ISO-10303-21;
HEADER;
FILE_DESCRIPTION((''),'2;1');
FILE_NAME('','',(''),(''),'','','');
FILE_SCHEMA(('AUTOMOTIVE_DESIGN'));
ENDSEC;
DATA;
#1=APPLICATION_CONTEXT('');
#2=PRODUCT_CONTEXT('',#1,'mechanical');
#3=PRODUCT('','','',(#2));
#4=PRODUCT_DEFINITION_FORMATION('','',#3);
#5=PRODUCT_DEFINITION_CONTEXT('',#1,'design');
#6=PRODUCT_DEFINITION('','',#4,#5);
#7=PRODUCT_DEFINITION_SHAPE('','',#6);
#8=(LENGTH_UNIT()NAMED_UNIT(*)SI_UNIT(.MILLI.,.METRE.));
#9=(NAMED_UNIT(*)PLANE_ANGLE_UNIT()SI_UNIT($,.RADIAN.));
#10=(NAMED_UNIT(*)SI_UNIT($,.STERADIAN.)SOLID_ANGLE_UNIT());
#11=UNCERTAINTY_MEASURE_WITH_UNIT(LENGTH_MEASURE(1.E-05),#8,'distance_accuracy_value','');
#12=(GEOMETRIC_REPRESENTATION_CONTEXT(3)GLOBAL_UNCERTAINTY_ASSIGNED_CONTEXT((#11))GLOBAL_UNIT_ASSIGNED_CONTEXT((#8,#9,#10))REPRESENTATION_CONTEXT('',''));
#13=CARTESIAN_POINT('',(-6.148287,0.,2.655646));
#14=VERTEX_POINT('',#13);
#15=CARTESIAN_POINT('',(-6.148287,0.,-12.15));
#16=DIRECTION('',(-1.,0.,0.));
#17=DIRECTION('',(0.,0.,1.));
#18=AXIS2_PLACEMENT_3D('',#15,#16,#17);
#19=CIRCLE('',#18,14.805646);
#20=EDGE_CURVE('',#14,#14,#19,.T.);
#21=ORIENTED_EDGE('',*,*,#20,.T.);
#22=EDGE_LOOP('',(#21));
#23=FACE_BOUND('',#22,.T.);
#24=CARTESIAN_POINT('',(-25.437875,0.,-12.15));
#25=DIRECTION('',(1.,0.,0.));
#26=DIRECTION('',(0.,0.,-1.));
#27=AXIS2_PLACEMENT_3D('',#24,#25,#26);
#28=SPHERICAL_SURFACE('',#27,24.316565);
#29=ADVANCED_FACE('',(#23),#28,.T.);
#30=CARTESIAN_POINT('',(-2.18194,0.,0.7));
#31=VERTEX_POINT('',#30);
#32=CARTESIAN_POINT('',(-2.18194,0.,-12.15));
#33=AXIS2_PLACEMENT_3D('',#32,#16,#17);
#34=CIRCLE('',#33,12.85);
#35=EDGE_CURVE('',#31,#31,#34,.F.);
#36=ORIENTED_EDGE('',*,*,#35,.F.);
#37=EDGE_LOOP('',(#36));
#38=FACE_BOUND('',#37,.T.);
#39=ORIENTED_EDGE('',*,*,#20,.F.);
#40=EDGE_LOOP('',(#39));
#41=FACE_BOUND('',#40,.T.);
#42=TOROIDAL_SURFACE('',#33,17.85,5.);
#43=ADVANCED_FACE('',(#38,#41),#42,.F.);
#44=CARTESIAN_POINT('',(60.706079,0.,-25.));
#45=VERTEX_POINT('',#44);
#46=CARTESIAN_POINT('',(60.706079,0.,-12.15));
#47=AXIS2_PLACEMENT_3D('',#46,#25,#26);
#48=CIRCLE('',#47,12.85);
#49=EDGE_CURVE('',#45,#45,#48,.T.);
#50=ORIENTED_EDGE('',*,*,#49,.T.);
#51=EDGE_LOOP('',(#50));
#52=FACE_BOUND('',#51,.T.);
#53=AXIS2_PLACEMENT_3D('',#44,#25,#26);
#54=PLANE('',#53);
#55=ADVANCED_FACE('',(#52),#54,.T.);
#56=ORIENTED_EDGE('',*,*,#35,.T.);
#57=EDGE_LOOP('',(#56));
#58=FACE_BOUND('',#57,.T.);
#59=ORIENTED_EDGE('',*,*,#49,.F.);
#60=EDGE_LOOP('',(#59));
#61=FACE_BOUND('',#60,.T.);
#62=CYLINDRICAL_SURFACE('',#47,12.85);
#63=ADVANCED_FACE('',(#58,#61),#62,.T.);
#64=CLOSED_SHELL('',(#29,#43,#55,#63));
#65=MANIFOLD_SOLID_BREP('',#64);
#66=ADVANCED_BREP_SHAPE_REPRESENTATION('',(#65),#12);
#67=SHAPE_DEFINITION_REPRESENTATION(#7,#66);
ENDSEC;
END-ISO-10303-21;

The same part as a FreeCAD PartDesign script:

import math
import FreeCAD as App
import Part
import Sketcher

V = App.Vector
Q = App.Units.Quantity


def edges_at(feature, points):
    """Names of the edges that pass closest to the given points."""
    edges = feature.Shape.Edges
    near = lambda p: min(range(len(edges)), key=lambda i: edges[i].distToShape(Part.Vertex(*p))[0])
    return sorted({f"Edge{near(p) + 1}" for p in points})

doc = App.newDocument("Part")
body = doc.addObject("PartDesign::Body", "Body")

sketch1 = body.newObject("Sketcher::SketchObject", "Sketch")
sketch1.AttachmentSupport = (doc.getObject("XZ_Plane"), [""])
sketch1.MapMode = "FlatFace"
sketch1.addGeometry(Part.LineSegment(V(60.706079, -25, 0), V(-4.793921, -25, 0)), False)
sketch1.addGeometry(Part.ArcOfCircle(Part.Circle(V(-25.437875, -12.15, 0), V(0, 0, 1), 24.316565), math.radians(180), math.radians(328.099459)), False)
sketch1.addGeometry(Part.LineSegment(V(-49.75444, -12.15, 0), V(60.706079, -12.15, 0)), False)
sketch1.addGeometry(Part.LineSegment(V(60.706079, -12.15, 0), V(60.706079, -25, 0)), False)
sketch1.addGeometry(Part.LineSegment(V(60.706079, -12.15, 0), V(-49.75444, -12.15, 0)), True)
sketch1.addConstraint(Sketcher.Constraint("Coincident", 0, 2, 1, 2))
sketch1.addConstraint(Sketcher.Constraint("Coincident", 1, 1, 2, 1))
sketch1.addConstraint(Sketcher.Constraint("Coincident", 2, 2, 3, 1))
sketch1.addConstraint(Sketcher.Constraint("Coincident", 3, 2, 0, 1))
sketch1.addConstraint(Sketcher.Constraint("Horizontal", 0))
sketch1.addConstraint(Sketcher.Constraint("Horizontal", 2))
sketch1.addConstraint(Sketcher.Constraint("Vertical", 3))
sketch1.addConstraint(Sketcher.Constraint("Horizontal", 4))
sketch1.addConstraint(Sketcher.Constraint("Coincident", 4, 1, 2, 2))
sketch1.addConstraint(Sketcher.Constraint("Equal", 2, 4))
sketch1.addConstraint(Sketcher.Constraint("DistanceX", 0, 2, 0, 1, Q("65.5 mm")))
sketch1.addConstraint(Sketcher.Constraint("DistanceY", 0, 2, -1, 1, Q("25 mm")))
sketch1.addConstraint(Sketcher.Constraint("DistanceY", 3, 2, 3, 1, Q("12.85 mm")))
sketch1.addConstraint(Sketcher.Constraint("DistanceY", 1, 3, -1, 1, Q("12.15 mm")))
sketch1.addConstraint(Sketcher.Constraint("Radius", 1, Q("24.316565 mm")))
sketch1.addConstraint(Sketcher.Constraint("DistanceX", 0, 2, -1, 1, Q("4.793921 mm")))
revolution = body.newObject("PartDesign::Revolution", "Revolution")
revolution.Profile = sketch1
revolution.ReferenceAxis = (sketch1, ["Axis0"])
revolution.Angle = 360
doc.recompute()

fillet = body.newObject("PartDesign::Fillet", "Fillet")
fillet.Base = (revolution, edges_at(revolution, [(-4.794, 0, 0.7)]))
fillet.Radius = 5

doc.recompute()
